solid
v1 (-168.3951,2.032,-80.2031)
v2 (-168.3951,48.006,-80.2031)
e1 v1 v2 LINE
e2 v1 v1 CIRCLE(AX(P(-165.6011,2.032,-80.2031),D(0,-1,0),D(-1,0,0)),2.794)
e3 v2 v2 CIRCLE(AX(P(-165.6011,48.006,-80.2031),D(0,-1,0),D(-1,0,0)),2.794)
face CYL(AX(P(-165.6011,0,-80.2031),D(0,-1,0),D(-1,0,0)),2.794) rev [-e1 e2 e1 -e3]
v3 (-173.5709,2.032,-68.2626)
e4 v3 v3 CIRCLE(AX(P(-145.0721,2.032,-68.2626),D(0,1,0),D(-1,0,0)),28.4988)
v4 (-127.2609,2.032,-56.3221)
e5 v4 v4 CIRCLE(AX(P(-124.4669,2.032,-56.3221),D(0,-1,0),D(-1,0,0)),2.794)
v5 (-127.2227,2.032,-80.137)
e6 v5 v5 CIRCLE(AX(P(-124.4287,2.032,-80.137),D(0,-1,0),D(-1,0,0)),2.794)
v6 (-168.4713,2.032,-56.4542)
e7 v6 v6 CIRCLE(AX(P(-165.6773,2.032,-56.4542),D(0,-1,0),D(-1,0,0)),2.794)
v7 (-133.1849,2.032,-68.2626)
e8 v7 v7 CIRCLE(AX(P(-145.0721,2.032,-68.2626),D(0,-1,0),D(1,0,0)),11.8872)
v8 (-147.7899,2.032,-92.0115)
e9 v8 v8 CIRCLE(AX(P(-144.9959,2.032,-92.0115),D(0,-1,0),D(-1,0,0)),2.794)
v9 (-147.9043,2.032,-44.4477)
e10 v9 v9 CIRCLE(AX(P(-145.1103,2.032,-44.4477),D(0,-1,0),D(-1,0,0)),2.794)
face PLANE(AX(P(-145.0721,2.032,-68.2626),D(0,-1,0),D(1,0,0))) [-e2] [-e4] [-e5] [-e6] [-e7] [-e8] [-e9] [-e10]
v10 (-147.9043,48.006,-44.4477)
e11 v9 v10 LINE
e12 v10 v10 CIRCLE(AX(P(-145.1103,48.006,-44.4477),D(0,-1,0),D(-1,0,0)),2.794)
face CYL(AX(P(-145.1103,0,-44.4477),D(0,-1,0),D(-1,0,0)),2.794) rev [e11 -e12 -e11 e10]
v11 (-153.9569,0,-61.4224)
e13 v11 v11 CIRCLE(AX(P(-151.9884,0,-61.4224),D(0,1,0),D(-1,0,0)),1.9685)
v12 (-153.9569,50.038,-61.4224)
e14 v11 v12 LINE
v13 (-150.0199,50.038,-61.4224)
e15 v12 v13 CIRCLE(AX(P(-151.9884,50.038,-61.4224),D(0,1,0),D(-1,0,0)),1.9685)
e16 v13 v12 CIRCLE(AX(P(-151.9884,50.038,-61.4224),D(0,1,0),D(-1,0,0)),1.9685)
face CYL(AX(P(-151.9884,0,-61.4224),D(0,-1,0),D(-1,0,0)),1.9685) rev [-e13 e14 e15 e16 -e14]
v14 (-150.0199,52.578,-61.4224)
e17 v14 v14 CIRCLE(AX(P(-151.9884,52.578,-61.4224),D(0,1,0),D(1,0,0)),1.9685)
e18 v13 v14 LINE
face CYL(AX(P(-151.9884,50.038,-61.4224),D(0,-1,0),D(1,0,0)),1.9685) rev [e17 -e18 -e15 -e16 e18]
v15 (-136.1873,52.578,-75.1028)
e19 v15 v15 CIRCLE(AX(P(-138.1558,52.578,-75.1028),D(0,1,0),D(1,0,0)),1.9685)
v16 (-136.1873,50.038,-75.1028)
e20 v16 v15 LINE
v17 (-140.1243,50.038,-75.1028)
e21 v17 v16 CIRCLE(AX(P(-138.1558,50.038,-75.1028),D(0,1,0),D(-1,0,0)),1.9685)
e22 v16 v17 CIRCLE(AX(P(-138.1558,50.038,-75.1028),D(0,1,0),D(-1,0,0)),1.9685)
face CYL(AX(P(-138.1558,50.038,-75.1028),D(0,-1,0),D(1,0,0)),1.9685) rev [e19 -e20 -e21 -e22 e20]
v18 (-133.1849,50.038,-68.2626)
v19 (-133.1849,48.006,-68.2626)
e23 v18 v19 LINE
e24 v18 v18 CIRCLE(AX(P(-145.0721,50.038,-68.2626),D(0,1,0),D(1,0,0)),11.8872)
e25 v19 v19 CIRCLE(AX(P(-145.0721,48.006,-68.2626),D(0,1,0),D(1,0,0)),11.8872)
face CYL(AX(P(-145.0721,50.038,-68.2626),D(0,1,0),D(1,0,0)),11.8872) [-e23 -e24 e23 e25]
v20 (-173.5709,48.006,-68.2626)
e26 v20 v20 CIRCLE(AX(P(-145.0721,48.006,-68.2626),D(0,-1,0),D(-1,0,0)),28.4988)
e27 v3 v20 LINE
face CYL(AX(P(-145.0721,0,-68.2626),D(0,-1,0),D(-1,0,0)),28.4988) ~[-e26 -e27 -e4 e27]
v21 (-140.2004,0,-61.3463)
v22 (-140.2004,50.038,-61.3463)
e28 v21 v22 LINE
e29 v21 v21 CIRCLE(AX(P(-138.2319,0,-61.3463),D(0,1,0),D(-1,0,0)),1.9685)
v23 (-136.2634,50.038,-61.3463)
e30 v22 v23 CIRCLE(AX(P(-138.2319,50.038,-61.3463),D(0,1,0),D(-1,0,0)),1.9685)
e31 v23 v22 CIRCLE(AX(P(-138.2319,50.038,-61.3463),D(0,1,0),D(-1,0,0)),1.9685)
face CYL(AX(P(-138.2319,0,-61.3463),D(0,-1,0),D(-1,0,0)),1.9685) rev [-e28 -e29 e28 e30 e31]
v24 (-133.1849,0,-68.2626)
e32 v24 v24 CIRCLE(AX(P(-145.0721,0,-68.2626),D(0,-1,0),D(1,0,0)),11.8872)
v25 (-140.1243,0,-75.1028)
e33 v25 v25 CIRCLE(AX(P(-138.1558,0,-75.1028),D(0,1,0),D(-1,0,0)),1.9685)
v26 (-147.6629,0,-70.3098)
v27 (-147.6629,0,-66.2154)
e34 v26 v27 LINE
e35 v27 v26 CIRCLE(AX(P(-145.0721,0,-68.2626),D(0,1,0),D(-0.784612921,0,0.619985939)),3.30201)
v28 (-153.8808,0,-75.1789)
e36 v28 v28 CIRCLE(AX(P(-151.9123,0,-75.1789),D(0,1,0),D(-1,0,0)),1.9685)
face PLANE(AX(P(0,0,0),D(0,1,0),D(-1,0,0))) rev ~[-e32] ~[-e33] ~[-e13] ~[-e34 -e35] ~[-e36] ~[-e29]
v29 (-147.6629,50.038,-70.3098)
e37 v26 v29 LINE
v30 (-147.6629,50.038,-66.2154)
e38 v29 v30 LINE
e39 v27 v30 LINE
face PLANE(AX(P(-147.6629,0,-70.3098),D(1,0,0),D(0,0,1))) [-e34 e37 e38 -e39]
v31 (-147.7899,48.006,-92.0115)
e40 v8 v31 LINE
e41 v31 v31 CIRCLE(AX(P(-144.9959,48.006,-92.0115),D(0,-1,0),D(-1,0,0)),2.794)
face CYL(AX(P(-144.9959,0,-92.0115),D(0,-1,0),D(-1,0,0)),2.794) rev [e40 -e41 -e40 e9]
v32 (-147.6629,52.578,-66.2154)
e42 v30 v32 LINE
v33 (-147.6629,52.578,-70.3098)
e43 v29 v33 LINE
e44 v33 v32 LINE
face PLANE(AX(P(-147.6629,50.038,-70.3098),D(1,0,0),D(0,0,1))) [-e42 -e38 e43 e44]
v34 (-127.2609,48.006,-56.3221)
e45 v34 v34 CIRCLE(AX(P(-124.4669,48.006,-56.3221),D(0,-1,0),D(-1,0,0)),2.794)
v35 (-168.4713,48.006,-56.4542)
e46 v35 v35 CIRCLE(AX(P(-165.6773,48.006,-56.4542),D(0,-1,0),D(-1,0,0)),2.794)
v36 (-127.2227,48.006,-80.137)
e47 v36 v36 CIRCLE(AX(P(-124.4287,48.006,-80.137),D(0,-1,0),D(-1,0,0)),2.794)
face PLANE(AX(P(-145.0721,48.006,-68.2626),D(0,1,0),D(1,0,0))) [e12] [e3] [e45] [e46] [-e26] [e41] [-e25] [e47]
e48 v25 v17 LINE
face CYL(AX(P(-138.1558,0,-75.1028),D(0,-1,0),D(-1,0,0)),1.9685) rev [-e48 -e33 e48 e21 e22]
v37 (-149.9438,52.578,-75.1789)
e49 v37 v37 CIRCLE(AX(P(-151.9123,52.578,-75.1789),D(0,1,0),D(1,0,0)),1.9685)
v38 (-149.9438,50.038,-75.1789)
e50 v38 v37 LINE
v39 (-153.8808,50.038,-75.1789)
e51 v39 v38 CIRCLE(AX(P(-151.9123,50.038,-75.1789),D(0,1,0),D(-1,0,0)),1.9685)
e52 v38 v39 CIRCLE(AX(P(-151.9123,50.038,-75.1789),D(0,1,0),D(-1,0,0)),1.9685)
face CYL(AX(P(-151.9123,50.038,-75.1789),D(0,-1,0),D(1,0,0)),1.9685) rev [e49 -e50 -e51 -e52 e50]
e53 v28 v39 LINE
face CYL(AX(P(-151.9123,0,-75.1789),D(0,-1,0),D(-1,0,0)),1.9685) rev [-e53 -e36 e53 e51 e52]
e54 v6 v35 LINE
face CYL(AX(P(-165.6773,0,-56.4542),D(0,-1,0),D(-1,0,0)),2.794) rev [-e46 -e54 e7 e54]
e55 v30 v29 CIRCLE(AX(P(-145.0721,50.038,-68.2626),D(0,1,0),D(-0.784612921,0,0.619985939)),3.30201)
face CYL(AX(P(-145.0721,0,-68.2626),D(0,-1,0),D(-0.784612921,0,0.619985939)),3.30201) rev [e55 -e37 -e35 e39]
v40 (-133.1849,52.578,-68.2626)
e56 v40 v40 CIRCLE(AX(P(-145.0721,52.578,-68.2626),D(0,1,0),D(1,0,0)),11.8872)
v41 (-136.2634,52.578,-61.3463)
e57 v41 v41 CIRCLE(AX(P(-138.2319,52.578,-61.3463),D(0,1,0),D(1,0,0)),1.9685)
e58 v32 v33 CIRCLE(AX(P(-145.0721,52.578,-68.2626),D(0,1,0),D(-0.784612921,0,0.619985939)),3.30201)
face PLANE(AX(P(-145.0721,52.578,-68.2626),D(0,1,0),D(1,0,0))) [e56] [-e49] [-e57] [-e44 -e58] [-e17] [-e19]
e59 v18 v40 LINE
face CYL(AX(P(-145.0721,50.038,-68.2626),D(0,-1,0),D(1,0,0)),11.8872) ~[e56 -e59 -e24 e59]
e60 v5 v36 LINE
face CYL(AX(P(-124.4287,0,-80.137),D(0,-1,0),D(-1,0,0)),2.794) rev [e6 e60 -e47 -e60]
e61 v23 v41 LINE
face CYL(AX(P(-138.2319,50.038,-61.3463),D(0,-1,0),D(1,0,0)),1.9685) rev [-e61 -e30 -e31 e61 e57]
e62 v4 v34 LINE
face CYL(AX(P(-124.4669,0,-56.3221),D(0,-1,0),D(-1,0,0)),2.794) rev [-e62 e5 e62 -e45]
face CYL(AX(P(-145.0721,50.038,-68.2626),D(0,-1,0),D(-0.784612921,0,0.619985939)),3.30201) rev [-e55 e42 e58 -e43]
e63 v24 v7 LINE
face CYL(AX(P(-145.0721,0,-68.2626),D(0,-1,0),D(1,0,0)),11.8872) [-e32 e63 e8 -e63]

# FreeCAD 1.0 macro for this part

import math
import FreeCAD as App
import Part
import Sketcher
Q = App.Units.Quantity

doc = App.newDocument("Part")
body = doc.addObject("PartDesign::Body", "Body")

sketch1 = body.newObject("Sketcher::SketchObject", "Sketch")
sketch1.AttachmentSupport = (doc.getObject("XZ_Plane"), [""])
sketch1.MapMode = "FlatFace"
sketch1.addGeometry([
    Part.Circle(App.Vector(-145.1, -68.3, 0), App.Vector(0, 0, 1), 28.5),
    Part.Circle(App.Vector(-145, -92, 0), App.Vector(0, 0, 1), 2.8),
    Part.Circle(App.Vector(-124.4, -80.1, 0), App.Vector(0, 0, 1), 2.8),
    Part.Circle(App.Vector(-138.2, -75.1, 0), App.Vector(0, 0, 1), 2),
    Part.Circle(App.Vector(-151.9, -75.2, 0), App.Vector(0, 0, 1), 2),
    Part.Circle(App.Vector(-165.6, -80.2, 0), App.Vector(0, 0, 1), 2.8),
    Part.Circle(App.Vector(-124.5, -56.3, 0), App.Vector(0, 0, 1), 2.8),
    Part.ArcOfCircle(Part.Circle(App.Vector(-145.1, -68.3, 0), App.Vector(0, 0, 1), 3.3), math.radians(-142), math.radians(142)),
    Part.LineSegment(App.Vector(-147.7, -66.2, 0), App.Vector(-147.7, -70.3, 0)),
    Part.Circle(App.Vector(-138.2, -61.3, 0), App.Vector(0, 0, 1), 2),
    Part.Circle(App.Vector(-152, -61.4, 0), App.Vector(0, 0, 1), 2),
    Part.Circle(App.Vector(-165.7, -56.5, 0), App.Vector(0, 0, 1), 2.8),
    Part.Circle(App.Vector(-145.1, -44.4, 0), App.Vector(0, 0, 1), 2.8),
], False)
sketch1.addConstraint([
    Sketcher.Constraint("Coincident", 7, 1, 8, 2),
    Sketcher.Constraint("Coincident", 8, 1, 7, 2),
    Sketcher.Constraint("Vertical", 8),
    Sketcher.Constraint("Coincident", 7, 3, 0, 3),
    Sketcher.Constraint("Equal", 1, 2),
    Sketcher.Constraint("Equal", 3, 4),
    Sketcher.Constraint("Equal", 2, 5),
    Sketcher.Constraint("Equal", 5, 6),
    Sketcher.Constraint("Equal", 4, 9),
    Sketcher.Constraint("Equal", 9, 10),
    Sketcher.Constraint("Equal", 6, 11),
    Sketcher.Constraint("Equal", 11, 12),
    Sketcher.Constraint("Diameter", 1, Q("0.22 in")),
    Sketcher.Constraint("Radius", 7, Q("0.13 in")),
    Sketcher.Constraint("Diameter", 3, Q("0.155 in")),
    Sketcher.Constraint("Diameter", 0, Q("2.244 in")),
    Sketcher.Constraint("DistanceY", 1, 3, 0, 3, Q("0.935 in")),
    Sketcher.Constraint("DistanceY", 5, 3, 11, 3, Q("0.935 in")),
    Sketcher.Constraint("DistanceX", 7, 1, 0, 3, Q("0.102 in")),
    Sketcher.Constraint("DistanceY", 0, 3, -1, 1, Q("2.6875 in")),
    Sketcher.Constraint("DistanceY", 2, 3, -1, 1, Q("3.155 in")),
    Sketcher.Constraint("DistanceX", 12, 3, -1, 1, Q("5.713 in")),
    Sketcher.Constraint("DistanceX", 0, 3, 1, 3, Q("0.003 in")),
    Sketcher.Constraint("DistanceY", 4, 3, 3, 3, Q("0.003 in")),
    Sketcher.Constraint("DistanceX", 9, 3, 3, 3, Q("0.003 in")),
    Sketcher.Constraint("DistanceX", 10, 3, 4, 3, Q("0.003 in")),
    Sketcher.Constraint("DistanceY", 10, 3, 9, 3, Q("0.003 in")),
    Sketcher.Constraint("DistanceX", 11, 3, 5, 3, Q("0.003 in")),
    Sketcher.Constraint("DistanceX", 0, 3, -1, 1, Q("5.7115 in")),
    Sketcher.Constraint("DistanceX", 3, 3, -1, 1, Q("5.4392 in")),
    Sketcher.Constraint("DistanceY", 3, 3, -1, 1, Q("2.9568 in")),
    Sketcher.Constraint("DistanceX", 4, 3, -1, 1, Q("5.9808 in")),
    Sketcher.Constraint("DistanceY", 5, 3, -1, 1, Q("3.1576 in")),
    Sketcher.Constraint("DistanceY", 6, 3, -1, 1, Q("2.2174 in")),
    Sketcher.Constraint("DistanceY", 9, 3, -1, 1, Q("2.4152 in")),
    Sketcher.Constraint("DistanceY", 12, 3, -1, 1, Q("1.7499 in")),
    Sketcher.Constraint("DistanceX", 6, 3, 2, 3, Q("0.0015 in")),
    Sketcher.Constraint("DistanceX", 2, 3, -1, 1, 124.4287),
    Sketcher.Constraint("DistanceX", 5, 3, -1, 1, 165.601),
])
pad1 = body.newObject("PartDesign::Pad", "Pad")
pad1.Profile = sketch1
pad1.Length = Q("1.97 in")
pad1.Reversed = True

sketch2 = body.newObject("Sketcher::SketchObject", "Sketch001")
sketch2.AttachmentSupport = (doc.getObject("XZ_Plane"), [""])
sketch2.MapMode = "FlatFace"
sketch2.AttachmentOffset = App.Placement(App.Vector(0, 0, -1.97 * 25.4), App.Rotation())
sketch2.addGeometry([
    Part.Circle(App.Vector(-145, -68, 0), App.Vector(0, 0, 1), 28),
    Part.Circle(App.Vector(-145, -68, 0), App.Vector(0, 0, 1), 12),
], False)
sketch2.addConstraint([
    Sketcher.Constraint("Coincident", 1, 3, 0, 3),
    Sketcher.Constraint("Diameter", 1, Q("0.936 in")),
    Sketcher.Constraint("Diameter", 0, Q("2.244 in")),
    Sketcher.Constraint("DistanceY", 0, 3, -1, 1, Q("2.6875 in")),
    Sketcher.Constraint("DistanceX", 0, 3, -1, 1, Q("5.7115 in")),
])
pocket1 = body.newObject("PartDesign::Pocket", "Pocket")
pocket1.Profile = sketch2
pocket1.Length = Q("0.08 in")
pocket1.Reversed = True

sketch3 = body.newObject("Sketcher::SketchObject", "Sketch002")
sketch3.AttachmentSupport = (doc.getObject("XZ_Plane"), [""])
sketch3.MapMode = "FlatFace"
sketch3.addGeometry([
    Part.Circle(App.Vector(-145, -68, 0), App.Vector(0, 0, 1), 28),
    Part.Circle(App.Vector(-145, -68, 0), App.Vector(0, 0, 1), 12),
], False)
sketch3.addConstraint([
    Sketcher.Constraint("Coincident", 1, 3, 0, 3),
    Sketcher.Constraint("Diameter", 0, Q("2.244 in")),
    Sketcher.Constraint("Diameter", 1, Q("0.936 in")),
    Sketcher.Constraint("DistanceY", 0, 3, -1, 1, Q("2.6875 in")),
    Sketcher.Constraint("DistanceX", 0, 3, -1, 1, Q("5.7115 in")),
])
pocket2 = body.newObject("PartDesign::Pocket", "Pocket001")
pocket2.Profile = sketch3
pocket2.Length = Q("0.08 in")

sketch4 = body.newObject("Sketcher::SketchObject", "Sketch003")
sketch4.AttachmentSupport = (doc.getObject("XZ_Plane"), [""])
sketch4.MapMode = "FlatFace"
sketch4.AttachmentOffset = App.Placement(App.Vector(0, 0, -1.97 * 25.4), App.Rotation())
sketch4.addGeometry([
    Part.Circle(App.Vector(-145.1, -68.3, 0), App.Vector(0, 0, 1), 11.9),
    Part.Circle(App.Vector(-152, -61.4, 0), App.Vector(0, 0, 1), 2),
    Part.Circle(App.Vector(-138.2, -61.3, 0), App.Vector(0, 0, 1), 2),
    Part.Circle(App.Vector(-151.9, -75.2, 0), App.Vector(0, 0, 1), 2),
    Part.ArcOfCircle(Part.Circle(App.Vector(-145.1, -68.3, 0), App.Vector(0, 0, 1), 3.3), math.radians(-142), math.radians(142)),
    Part.LineSegment(App.Vector(-147.7, -66.2, 0), App.Vector(-147.7, -70.3, 0)),
    Part.Circle(App.Vector(-138.2, -75.1, 0), App.Vector(0, 0, 1), 2),
], False)
sketch4.addConstraint([
    Sketcher.Constraint("Coincident", 4, 1, 5, 2),
    Sketcher.Constraint("Coincident", 5, 1, 4, 2),
    Sketcher.Constraint("Vertical", 5),
    Sketcher.Constraint("Coincident", 4, 3, 0, 3),
    Sketcher.Constraint("Equal", 1, 2),
    Sketcher.Constraint("Equal", 2, 3),
    Sketcher.Constraint("Equal", 3, 6),
    Sketcher.Constraint("Radius", 4, Q("0.13 in")),
    Sketcher.Constraint("Diameter", 0, Q("0.936 in")),
    Sketcher.Constraint("Diameter", 1, Q("0.155 in")),
    Sketcher.Constraint("DistanceX", 4, 1, 0, 3, Q("0.102 in")),
    Sketcher.Constraint("DistanceY", 0, 3, -1, 1, Q("2.6875 in")),
    Sketcher.Constraint("DistanceY", 1, 3, 2, 3, Q("0.003 in")),
    Sketcher.Constraint("DistanceX", 1, 3, 3, 3, Q("0.003 in")),
    Sketcher.Constraint("DistanceY", 3, 3, 6, 3, Q("0.003 in")),
    Sketcher.Constraint("DistanceX", 2, 3, 6, 3, Q("0.003 in")),
    Sketcher.Constraint("DistanceX", 0, 3, -1, 1, Q("5.7115 in")),
    Sketcher.Constraint("DistanceX", 1, 3, -1, 1, Q("5.9838 in")),
    Sketcher.Constraint("DistanceY", 1, 3, -1, 1, Q("2.4182 in")),
    Sketcher.Constraint("DistanceX", 2, 3, -1, 1, Q("5.4422 in")),
    Sketcher.Constraint("DistanceY", 3, 3, -1, 1, Q("2.9598 in")),
])
pad2 = body.newObject("PartDesign::Pad", "Pad001")
pad2.Profile = sketch4
pad2.Length = Q("0.1 in")
pad2.Reversed = True

doc.recompute()
